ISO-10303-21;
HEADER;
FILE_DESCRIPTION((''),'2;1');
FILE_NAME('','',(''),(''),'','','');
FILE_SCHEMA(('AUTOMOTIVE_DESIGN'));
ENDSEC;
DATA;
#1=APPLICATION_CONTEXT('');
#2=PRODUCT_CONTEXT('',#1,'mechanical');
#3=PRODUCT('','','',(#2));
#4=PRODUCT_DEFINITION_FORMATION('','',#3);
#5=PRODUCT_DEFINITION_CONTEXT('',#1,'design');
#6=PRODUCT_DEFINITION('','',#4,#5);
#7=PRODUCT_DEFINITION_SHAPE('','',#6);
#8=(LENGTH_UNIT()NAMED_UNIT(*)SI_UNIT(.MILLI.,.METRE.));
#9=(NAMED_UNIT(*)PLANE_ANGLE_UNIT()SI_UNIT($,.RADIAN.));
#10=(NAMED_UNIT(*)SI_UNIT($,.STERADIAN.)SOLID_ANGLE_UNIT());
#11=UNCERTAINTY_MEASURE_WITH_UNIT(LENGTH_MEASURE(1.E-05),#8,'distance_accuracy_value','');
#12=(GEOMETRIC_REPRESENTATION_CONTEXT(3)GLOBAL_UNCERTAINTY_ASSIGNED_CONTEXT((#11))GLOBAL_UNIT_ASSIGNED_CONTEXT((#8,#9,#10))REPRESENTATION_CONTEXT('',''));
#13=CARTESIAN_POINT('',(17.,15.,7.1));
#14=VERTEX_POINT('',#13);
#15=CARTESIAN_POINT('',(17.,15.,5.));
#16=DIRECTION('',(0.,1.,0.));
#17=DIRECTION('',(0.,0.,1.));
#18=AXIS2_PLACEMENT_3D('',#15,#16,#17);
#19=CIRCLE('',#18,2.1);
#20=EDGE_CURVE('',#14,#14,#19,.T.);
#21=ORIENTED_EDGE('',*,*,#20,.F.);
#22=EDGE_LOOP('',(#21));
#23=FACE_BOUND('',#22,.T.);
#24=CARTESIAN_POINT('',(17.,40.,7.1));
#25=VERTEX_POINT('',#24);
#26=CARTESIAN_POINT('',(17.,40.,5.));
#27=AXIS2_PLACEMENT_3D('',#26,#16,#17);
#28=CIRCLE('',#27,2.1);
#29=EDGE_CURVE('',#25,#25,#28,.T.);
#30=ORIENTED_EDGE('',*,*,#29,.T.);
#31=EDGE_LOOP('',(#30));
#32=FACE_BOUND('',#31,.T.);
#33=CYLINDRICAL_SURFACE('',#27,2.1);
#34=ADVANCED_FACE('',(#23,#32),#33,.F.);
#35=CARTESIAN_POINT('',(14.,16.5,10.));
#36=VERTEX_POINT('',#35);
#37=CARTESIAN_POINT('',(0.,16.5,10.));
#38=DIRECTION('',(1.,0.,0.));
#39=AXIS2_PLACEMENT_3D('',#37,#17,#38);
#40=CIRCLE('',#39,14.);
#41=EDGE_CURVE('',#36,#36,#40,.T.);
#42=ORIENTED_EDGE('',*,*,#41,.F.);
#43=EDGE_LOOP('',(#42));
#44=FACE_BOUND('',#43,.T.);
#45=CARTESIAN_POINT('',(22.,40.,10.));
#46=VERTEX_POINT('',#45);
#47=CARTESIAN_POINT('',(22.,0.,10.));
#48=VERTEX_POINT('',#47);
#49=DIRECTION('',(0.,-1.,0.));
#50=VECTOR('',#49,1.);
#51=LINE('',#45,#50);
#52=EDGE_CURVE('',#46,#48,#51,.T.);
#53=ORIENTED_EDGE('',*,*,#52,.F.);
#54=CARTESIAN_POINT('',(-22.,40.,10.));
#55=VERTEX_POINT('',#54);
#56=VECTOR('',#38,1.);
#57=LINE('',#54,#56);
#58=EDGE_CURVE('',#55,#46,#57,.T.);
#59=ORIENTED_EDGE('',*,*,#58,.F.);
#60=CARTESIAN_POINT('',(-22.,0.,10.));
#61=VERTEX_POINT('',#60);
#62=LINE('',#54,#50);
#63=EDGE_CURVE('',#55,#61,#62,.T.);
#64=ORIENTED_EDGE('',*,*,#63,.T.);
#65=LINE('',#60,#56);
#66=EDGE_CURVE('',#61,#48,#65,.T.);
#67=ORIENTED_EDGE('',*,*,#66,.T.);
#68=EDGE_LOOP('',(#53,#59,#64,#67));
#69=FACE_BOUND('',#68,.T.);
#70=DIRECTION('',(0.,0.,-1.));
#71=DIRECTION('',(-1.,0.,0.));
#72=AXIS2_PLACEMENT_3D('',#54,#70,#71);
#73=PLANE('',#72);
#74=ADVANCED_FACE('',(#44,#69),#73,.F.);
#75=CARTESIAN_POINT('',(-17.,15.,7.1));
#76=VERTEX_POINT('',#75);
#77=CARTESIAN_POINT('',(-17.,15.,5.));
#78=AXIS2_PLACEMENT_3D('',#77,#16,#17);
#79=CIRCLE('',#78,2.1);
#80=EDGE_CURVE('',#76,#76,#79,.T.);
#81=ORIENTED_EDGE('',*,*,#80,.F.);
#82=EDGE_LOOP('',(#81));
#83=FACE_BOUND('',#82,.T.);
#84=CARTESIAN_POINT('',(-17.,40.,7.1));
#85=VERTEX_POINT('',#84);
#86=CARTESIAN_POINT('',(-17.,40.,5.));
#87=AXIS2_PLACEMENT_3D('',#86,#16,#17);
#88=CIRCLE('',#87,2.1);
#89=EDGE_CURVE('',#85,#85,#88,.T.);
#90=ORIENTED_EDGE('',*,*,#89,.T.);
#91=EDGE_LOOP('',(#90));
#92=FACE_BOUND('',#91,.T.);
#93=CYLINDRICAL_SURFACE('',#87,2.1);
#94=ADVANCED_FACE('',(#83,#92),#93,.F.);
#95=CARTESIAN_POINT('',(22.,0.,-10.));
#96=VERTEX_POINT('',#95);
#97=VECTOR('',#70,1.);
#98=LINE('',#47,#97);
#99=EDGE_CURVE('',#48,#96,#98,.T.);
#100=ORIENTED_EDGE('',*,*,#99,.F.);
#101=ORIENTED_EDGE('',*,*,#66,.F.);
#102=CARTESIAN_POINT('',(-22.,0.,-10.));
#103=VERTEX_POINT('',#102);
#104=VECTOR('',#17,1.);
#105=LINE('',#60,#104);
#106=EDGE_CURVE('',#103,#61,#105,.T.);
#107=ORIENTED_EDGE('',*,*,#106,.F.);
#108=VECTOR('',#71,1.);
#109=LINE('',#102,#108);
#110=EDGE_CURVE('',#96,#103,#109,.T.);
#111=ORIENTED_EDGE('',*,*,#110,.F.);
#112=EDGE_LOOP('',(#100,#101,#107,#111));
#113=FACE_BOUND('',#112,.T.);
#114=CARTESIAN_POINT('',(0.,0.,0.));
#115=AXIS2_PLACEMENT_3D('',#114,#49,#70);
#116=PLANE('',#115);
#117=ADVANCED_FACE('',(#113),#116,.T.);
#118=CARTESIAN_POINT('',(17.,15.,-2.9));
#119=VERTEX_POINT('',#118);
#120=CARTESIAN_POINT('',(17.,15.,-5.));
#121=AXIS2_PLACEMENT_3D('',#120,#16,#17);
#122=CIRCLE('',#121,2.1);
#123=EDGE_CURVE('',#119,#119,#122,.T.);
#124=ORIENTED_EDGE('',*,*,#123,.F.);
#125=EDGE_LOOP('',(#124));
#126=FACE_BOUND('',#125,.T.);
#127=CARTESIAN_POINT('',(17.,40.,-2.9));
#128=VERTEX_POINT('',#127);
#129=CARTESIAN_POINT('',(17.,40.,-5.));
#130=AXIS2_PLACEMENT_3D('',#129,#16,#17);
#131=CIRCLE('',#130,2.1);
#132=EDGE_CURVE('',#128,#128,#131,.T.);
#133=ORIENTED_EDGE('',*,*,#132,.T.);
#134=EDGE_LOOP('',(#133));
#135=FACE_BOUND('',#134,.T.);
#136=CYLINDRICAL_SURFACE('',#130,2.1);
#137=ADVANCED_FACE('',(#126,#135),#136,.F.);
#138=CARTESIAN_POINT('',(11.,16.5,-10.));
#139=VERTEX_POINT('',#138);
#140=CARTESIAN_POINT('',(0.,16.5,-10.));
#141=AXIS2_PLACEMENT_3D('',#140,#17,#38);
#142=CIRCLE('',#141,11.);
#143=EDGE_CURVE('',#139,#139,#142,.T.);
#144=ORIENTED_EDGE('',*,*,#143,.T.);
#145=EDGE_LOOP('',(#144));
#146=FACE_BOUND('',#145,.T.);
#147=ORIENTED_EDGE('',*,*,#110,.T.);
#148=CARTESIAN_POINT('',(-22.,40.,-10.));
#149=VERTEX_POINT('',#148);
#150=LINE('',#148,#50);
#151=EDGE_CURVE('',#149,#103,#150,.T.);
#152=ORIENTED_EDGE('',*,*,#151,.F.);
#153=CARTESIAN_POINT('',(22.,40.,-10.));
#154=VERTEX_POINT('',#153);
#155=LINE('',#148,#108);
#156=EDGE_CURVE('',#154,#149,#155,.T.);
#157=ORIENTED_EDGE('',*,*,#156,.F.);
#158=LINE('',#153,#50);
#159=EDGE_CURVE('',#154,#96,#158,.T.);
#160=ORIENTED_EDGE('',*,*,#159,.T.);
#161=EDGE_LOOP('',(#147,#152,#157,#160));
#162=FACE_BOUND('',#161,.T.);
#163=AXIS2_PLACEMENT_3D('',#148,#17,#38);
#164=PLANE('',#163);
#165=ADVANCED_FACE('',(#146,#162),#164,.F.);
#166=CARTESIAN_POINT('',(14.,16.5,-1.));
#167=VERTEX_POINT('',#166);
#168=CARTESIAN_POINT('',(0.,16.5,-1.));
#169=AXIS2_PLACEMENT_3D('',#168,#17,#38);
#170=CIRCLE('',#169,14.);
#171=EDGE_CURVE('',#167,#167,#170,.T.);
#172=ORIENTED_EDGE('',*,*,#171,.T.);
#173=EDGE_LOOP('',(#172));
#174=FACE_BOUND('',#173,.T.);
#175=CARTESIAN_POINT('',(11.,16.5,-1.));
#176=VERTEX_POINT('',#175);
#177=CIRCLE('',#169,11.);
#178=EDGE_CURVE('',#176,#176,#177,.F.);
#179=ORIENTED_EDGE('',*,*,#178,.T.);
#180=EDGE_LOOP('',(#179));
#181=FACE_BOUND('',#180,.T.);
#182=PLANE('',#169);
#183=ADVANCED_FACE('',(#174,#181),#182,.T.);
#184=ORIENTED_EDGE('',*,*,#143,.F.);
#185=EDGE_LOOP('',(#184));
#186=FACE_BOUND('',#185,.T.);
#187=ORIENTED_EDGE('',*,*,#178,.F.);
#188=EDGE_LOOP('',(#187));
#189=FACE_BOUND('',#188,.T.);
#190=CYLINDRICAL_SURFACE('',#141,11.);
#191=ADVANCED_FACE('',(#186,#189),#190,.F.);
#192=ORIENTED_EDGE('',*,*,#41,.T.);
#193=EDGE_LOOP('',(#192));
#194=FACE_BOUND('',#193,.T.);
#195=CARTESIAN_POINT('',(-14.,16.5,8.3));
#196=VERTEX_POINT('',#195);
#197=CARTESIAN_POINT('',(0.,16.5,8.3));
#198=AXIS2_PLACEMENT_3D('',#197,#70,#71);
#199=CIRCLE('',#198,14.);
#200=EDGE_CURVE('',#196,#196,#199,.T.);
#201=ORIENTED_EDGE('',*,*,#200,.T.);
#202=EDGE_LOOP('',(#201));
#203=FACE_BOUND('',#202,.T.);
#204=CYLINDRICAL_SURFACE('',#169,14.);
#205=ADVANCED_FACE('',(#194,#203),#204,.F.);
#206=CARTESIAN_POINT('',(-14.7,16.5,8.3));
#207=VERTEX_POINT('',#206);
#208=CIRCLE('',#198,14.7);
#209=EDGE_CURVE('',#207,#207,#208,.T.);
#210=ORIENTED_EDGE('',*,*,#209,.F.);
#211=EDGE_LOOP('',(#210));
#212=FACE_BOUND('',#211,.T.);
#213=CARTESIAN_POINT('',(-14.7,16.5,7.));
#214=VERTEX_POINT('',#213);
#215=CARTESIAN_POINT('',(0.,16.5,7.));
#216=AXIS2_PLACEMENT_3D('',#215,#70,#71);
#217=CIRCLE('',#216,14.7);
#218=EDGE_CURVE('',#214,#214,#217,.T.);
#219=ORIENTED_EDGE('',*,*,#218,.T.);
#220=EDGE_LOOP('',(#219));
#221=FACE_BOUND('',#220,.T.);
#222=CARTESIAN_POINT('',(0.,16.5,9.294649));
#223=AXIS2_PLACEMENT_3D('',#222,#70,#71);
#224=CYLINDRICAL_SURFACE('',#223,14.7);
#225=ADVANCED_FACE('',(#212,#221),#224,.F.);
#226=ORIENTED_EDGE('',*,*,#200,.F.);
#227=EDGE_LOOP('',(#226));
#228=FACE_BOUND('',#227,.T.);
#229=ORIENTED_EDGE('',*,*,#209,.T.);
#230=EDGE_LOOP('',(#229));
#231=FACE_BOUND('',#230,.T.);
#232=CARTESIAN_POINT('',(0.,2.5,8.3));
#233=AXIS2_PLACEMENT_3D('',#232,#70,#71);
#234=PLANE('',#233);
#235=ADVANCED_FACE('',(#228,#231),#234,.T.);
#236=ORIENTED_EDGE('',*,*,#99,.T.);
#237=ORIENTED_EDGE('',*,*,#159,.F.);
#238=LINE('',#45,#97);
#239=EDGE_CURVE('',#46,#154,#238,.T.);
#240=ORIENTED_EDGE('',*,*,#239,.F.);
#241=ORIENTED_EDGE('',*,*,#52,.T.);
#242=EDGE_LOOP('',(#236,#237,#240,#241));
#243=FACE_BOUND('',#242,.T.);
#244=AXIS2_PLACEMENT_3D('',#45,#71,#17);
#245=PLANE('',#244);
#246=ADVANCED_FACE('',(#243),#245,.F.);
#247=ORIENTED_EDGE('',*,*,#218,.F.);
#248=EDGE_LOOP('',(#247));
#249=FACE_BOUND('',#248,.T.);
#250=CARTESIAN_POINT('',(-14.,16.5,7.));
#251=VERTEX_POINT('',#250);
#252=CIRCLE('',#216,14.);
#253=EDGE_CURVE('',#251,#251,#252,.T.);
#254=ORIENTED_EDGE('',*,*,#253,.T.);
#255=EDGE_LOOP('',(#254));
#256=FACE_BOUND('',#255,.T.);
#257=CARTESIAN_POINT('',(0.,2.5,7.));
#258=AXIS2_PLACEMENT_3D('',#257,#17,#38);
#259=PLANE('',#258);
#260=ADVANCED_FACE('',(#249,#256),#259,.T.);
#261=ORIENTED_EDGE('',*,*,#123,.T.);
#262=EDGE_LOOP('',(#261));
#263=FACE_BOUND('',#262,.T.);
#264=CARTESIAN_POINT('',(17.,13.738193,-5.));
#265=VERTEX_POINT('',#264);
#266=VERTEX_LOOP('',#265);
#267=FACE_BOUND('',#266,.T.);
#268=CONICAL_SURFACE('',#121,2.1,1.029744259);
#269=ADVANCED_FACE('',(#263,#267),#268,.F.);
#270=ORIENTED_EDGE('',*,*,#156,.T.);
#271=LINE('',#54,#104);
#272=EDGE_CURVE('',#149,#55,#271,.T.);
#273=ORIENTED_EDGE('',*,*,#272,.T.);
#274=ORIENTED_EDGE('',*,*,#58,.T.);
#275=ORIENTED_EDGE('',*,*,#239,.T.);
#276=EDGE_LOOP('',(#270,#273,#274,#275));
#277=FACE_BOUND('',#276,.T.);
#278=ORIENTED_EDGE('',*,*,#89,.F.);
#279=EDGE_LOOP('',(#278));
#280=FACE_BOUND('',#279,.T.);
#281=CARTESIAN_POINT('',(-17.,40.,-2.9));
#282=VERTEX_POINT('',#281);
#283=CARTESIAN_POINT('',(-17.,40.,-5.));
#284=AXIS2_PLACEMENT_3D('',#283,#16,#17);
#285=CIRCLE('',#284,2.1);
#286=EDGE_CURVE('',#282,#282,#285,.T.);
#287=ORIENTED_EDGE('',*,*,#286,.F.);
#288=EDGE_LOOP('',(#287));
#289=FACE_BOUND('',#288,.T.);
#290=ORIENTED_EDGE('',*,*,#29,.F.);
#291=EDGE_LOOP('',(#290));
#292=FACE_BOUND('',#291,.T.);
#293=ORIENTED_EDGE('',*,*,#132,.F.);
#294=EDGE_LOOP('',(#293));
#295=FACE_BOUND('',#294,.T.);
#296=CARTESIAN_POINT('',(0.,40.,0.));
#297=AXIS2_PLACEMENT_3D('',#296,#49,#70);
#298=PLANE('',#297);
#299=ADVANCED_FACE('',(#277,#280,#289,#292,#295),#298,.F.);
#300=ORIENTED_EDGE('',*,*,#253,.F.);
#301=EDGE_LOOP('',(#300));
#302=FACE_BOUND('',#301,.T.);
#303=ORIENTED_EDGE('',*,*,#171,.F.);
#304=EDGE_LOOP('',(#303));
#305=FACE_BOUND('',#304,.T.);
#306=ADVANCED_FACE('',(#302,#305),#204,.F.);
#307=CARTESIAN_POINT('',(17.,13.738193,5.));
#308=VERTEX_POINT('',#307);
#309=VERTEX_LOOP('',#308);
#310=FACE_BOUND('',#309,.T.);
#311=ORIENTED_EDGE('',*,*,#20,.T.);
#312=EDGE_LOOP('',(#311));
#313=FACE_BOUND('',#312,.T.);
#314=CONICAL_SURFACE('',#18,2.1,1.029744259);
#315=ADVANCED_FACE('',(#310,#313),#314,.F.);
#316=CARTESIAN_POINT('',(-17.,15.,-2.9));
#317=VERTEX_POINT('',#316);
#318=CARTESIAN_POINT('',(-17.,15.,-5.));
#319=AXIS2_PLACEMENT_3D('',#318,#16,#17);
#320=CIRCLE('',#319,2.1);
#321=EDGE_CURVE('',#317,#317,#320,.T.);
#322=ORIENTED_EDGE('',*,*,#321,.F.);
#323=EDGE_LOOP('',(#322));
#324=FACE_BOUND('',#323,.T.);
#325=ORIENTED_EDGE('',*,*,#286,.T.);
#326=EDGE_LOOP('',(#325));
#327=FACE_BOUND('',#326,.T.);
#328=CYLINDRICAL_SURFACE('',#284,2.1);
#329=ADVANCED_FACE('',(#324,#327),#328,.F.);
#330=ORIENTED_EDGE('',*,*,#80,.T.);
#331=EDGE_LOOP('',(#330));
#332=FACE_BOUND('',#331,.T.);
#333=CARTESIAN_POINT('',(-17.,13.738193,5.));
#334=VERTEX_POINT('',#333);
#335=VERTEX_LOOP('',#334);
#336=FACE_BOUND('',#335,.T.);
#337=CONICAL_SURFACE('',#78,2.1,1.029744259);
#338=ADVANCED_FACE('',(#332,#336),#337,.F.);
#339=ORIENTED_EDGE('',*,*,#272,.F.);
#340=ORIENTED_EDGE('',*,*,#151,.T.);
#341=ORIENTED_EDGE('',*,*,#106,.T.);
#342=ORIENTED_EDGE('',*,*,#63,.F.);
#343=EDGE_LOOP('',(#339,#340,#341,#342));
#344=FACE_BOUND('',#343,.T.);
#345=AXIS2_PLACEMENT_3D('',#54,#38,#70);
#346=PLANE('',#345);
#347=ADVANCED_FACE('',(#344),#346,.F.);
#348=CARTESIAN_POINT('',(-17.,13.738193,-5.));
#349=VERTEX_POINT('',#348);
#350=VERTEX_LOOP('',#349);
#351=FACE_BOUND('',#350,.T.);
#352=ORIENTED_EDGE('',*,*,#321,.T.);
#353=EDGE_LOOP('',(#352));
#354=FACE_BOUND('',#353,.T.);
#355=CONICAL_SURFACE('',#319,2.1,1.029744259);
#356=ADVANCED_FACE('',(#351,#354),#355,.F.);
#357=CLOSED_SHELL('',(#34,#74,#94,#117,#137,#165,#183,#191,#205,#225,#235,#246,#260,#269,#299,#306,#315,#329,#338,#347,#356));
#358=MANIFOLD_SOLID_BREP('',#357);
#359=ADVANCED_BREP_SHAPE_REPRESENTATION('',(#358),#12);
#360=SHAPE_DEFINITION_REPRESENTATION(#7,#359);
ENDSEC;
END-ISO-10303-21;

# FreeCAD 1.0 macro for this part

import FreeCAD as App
import Part
import Sketcher

V = App.Vector
Q = App.Units.Quantity


def add_polygon(sketch, points):
    """Adds a closed chain of lines whose ends are joined by coincident constraints."""
    first, n = sketch.GeometryCount, len(points)
    for a, b in zip(points, points[1:] + points[:1]):
        sketch.addGeometry(Part.LineSegment(App.Vector(*a, 0), App.Vector(*b, 0)), False)
    for i in range(n):
        sketch.addConstraint(Sketcher.Constraint("Coincident", first + i, 2, first + (i + 1) % n, 1))

doc = App.newDocument("Part")
params = doc.addObject("Spreadsheet::Sheet", "Params")
for row, (alias, value) in enumerate([
    ("sketch1_width", "44 mm"),
    ("sketch1_height", "20 mm"),
    ("pad1_length", "40 mm"),
    ("sketch2_diameter", "22 mm"),
    ("sketch3_diameter", "28 mm"),
    ("pocket2_length", "11 mm"),
    ("sketch4_diameter", "4.2 mm"),
    ("hole_diameter", "4.2 mm"),
    ("hole_depth", "25 mm"),
    ("sketch5_width", "0.7 mm"),
    ("sketch5_height", "1.3 mm"),
    ("groove_angle", "360 deg"),
], start=1):
    params.set(f"A{row}", alias)
    params.set(f"B{row}", "=" + value)
    params.setAlias(f"B{row}", alias)

body = doc.addObject("PartDesign::Body", "Body")

sketch1 = body.newObject("Sketcher::SketchObject", "Sketch")
sketch1.AttachmentSupport = (doc.getObject("XZ_Plane"), [""])
sketch1.MapMode = "FlatFace"
add_polygon(sketch1, [(-22, -10), (-22, 10), (22, 10), (22, -10)])
sketch1.addConstraint(Sketcher.Constraint("Vertical", 0))
sketch1.addConstraint(Sketcher.Constraint("Horizontal", 1))
sketch1.addConstraint(Sketcher.Constraint("Vertical", 2))
sketch1.addConstraint(Sketcher.Constraint("Horizontal", 3))
sketch1.addConstraint(Sketcher.Constraint("Symmetric", 0, 2, 2, 2, -1, 1))
sketch1.addConstraint(Sketcher.Constraint("DistanceX", 1, 1, 1, 2, Q("44 mm")))
sketch1.addConstraint(Sketcher.Constraint("DistanceY", 0, 1, 0, 2, Q("20 mm")))
sketch1.setExpression("Constraints[9]", "Params.sketch1_width")
sketch1.setExpression("Constraints[10]", "Params.sketch1_height")
pad1 = body.newObject("PartDesign::Pad", "Pad")
pad1.Profile = sketch1
pad1.setExpression("Length", "Params.pad1_length")
pad1.Reversed = True

sketch2 = body.newObject("Sketcher::SketchObject", "Sketch001")
sketch2.AttachmentSupport = (doc.getObject("XY_Plane"), [""])
sketch2.MapMode = "FlatFace"
sketch2.AttachmentOffset = App.Placement(V(0, 0, 10), App.Rotation())
sketch2.addGeometry(Part.Circle(V(0, 16, 0), V(0, 0, 1), 11), False)
sketch2.addConstraint(Sketcher.Constraint("PointOnObject", 0, 3, -2))
sketch2.addConstraint(Sketcher.Constraint("Diameter", 0, Q("22 mm")))
sketch2.addConstraint(Sketcher.Constraint("DistanceY", -1, 1, 0, 3, Q("16.5 mm")))
sketch2.setExpression("Constraints[1]", "Params.sketch2_diameter")
pocket1 = body.newObject("PartDesign::Pocket", "Pocket")
pocket1.Profile = sketch2
pocket1.Type = "ThroughAll"

sketch3 = body.newObject("Sketcher::SketchObject", "Sketch002")
sketch3.AttachmentSupport = (doc.getObject("XY_Plane"), [""])
sketch3.MapMode = "FlatFace"
sketch3.AttachmentOffset = App.Placement(V(0, 0, 10), App.Rotation())
sketch3.addGeometry(Part.Circle(V(0, 16, 0), V(0, 0, 1), 14), False)
sketch3.addConstraint(Sketcher.Constraint("PointOnObject", 0, 3, -2))
sketch3.addConstraint(Sketcher.Constraint("Diameter", 0, Q("28 mm")))
sketch3.addConstraint(Sketcher.Constraint("DistanceY", -1, 1, 0, 3, Q("16.5 mm")))
sketch3.setExpression("Constraints[1]", "Params.sketch3_diameter")
pocket2 = body.newObject("PartDesign::Pocket", "Pocket001")
pocket2.Profile = sketch3
pocket2.setExpression("Length", "Params.pocket2_length")

sketch4 = body.newObject("Sketcher::SketchObject", "Sketch003")
sketch4.AttachmentSupport = (doc.getObject("XZ_Plane"), [""])
sketch4.MapMode = "FlatFace"
sketch4.AttachmentOffset = App.Placement(V(0, 0, -40), App.Rotation())
sketch4.addGeometry(Part.Circle(V(17, -5, 0), V(0, 0, 1), 2.1), False)
sketch4.addGeometry(Part.Circle(V(17, 5, 0), V(0, 0, 1), 2.1), False)
sketch4.addGeometry(Part.Circle(V(-17, 5, 0), V(0, 0, 1), 2.1), False)
sketch4.addGeometry(Part.Circle(V(-17, -5, 0), V(0, 0, 1), 2.1), False)
sketch4.addConstraint(Sketcher.Constraint("Equal", 0, 1))
sketch4.addConstraint(Sketcher.Constraint("Equal", 1, 2))
sketch4.addConstraint(Sketcher.Constraint("Equal", 2, 3))
sketch4.addConstraint(Sketcher.Constraint("Symmetric", 0, 3, 2, 3, -1, 1))
sketch4.addConstraint(Sketcher.Constraint("Symmetric", 1, 3, 3, 3, -1, 1))
sketch4.addConstraint(Sketcher.Constraint("Symmetric", 1, 3, 2, 3, -2))
sketch4.addConstraint(Sketcher.Constraint("Diameter", 0, Q("4.2 mm")))
sketch4.addConstraint(Sketcher.Constraint("DistanceX", -1, 1, 0, 3, Q("17 mm")))
sketch4.addConstraint(Sketcher.Constraint("DistanceY", 0, 3, -1, 1, Q("5 mm")))
sketch4.setExpression("Constraints[6]", "Params.sketch4_diameter")
doc.recompute()
hole = body.newObject("PartDesign::Hole", "Hole")
hole.Profile = sketch4
hole.ThreadType = "None"
hole.setExpression("Diameter", "Params.hole_diameter")
hole.DepthType = "Dimension"
hole.setExpression("Depth", "Params.hole_depth")
hole.DrillPoint = "Angled"
hole.DrillPointAngle = 118
hole.Reversed = True

sketch5 = body.newObject("Sketcher::SketchObject", "Sketch004")
sketch5.AttachmentSupport = (doc.getObject("YZ_Plane"), [""])
sketch5.MapMode = "FlatFace"
add_polygon(sketch5, [(2.5, 8.3), (1.8, 8.3), (1.8, 7), (2.5, 7)])
sketch5.addGeometry(Part.LineSegment(V(16.5, 7, 0), V(16.5, 8.3, 0)), True)
sketch5.addConstraint(Sketcher.Constraint("Horizontal", 0))
sketch5.addConstraint(Sketcher.Constraint("Vertical", 1))
sketch5.addConstraint(Sketcher.Constraint("Horizontal", 2))
sketch5.addConstraint(Sketcher.Constraint("Vertical", 3))
sketch5.addConstraint(Sketcher.Constraint("Vertical", 4))
sketch5.addConstraint(Sketcher.Constraint("Horizontal", 2, 2, 4, 1))
sketch5.addConstraint(Sketcher.Constraint("Horizontal", 3, 2, 4, 2))
sketch5.addConstraint(Sketcher.Constraint("DistanceX", 0, 2, 0, 1, Q("0.7 mm")))
sketch5.addConstraint(Sketcher.Constraint("DistanceY", 1, 2, 1, 1, Q("1.3 mm")))
sketch5.addConstraint(Sketcher.Constraint("DistanceY", -1, 1, 1, 2, Q("7 mm")))
sketch5.addConstraint(Sketcher.Constraint("DistanceX", 2, 2, 4, 1, Q("14 mm")))
sketch5.addConstraint(Sketcher.Constraint("DistanceX", -1, 1, 0, 2, Q("1.8 mm")))
sketch5.setExpression("Constraints[11]", "Params.sketch5_width")
sketch5.setExpression("Constraints[12]", "Params.sketch5_height")
groove = body.newObject("PartDesign::Groove", "Groove")
groove.Profile = sketch5
groove.ReferenceAxis = (sketch5, ["Axis0"])
groove.setExpression("Angle", "Params.groove_angle")

doc.recompute()
